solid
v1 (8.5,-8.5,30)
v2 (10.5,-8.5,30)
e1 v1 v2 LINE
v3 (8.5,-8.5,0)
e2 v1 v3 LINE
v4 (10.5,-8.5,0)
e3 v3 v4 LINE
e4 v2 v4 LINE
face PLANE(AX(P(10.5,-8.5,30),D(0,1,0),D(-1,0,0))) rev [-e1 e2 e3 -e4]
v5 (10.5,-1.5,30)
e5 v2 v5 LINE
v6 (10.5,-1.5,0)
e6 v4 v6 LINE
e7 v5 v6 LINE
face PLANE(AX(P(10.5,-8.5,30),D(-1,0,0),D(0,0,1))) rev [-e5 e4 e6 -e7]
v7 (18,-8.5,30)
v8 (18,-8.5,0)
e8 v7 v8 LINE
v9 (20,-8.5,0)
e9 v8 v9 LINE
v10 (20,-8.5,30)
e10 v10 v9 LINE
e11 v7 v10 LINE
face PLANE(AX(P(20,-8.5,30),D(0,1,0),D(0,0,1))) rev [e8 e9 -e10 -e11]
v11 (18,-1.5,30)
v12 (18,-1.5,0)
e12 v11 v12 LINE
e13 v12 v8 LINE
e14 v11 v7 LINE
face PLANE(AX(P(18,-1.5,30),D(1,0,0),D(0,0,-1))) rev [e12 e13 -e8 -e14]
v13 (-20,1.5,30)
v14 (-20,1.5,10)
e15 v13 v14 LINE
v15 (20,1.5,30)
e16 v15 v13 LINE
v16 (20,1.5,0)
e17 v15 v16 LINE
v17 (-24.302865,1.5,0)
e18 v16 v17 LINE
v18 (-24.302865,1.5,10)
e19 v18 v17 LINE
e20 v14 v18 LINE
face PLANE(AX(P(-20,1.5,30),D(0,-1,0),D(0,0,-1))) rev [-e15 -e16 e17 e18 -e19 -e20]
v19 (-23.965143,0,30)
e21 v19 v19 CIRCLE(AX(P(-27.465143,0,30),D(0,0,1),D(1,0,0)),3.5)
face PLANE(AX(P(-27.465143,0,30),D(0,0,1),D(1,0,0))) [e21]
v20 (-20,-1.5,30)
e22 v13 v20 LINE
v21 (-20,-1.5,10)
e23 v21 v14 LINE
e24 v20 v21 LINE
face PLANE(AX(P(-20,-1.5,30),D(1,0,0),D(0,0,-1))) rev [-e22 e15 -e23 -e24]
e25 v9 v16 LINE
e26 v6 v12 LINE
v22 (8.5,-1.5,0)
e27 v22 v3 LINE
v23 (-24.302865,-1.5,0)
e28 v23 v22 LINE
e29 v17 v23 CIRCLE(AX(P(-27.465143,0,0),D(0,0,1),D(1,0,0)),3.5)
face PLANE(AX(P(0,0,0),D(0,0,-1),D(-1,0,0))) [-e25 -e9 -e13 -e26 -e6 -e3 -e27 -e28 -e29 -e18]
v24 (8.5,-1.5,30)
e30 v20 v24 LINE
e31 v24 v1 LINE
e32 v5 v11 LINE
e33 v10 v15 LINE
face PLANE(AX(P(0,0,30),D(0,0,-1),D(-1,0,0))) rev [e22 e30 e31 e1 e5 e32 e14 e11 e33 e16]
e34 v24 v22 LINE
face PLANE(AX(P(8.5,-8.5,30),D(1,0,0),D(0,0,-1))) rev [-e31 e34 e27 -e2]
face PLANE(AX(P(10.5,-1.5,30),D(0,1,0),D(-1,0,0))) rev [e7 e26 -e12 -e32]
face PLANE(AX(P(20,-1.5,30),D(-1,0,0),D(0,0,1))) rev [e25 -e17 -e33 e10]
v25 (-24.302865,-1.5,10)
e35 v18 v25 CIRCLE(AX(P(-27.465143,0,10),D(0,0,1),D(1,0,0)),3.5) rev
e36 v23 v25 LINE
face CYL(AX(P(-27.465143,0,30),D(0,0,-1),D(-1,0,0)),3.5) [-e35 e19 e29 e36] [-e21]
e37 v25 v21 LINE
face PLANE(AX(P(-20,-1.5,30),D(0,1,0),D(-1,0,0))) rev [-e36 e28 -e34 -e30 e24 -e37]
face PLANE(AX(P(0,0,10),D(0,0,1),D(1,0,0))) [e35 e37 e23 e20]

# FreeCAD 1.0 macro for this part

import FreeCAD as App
import Part
import Sketcher

V = App.Vector


def add_polygon(sketch, points):
    """Adds a closed chain of lines whose ends are joined by coincident constraints."""
    first, n = sketch.GeometryCount, len(points)
    for a, b in zip(points, points[1:] + points[:1]):
        sketch.addGeometry(Part.LineSegment(App.Vector(*a, 0), App.Vector(*b, 0)), False)
    for i in range(n):
        sketch.addConstraint(Sketcher.Constraint("Coincident", first + i, 2, first + (i + 1) % n, 1))

doc = App.newDocument("Part")
body = doc.addObject("PartDesign::Body", "Body")

# Sketch on XY plane
sketch1 = doc.addObject("Sketcher::SketchObject", "Sketch")
body.addObject(sketch1)
sketch1.AttachmentSupport = (doc.XY_Plane, [""])
sketch1.MapMode = "FlatFace"
add_polygon(sketch1, [(-20, -1.5), (8.5, -1.5), (8.5, -8.5), (10.5, -8.5), (10.5, -1.5), (18, -1.5), (18, -8.5), (20, -8.5), (20, 1.5), (-20, 1.5)])  # lines 0-9
sketch1.addConstraint([
    Sketcher.Constraint("Horizontal", 0),
    Sketcher.Constraint("Vertical", 1),
    Sketcher.Constraint("Horizontal", 2),
    Sketcher.Constraint("Vertical", 3),
    Sketcher.Constraint("Horizontal", 4),
    Sketcher.Constraint("Vertical", 5),
    Sketcher.Constraint("Horizontal", 6),
    Sketcher.Constraint("Vertical", 7),
    Sketcher.Constraint("Horizontal", 8),
    Sketcher.Constraint("Vertical", 9),
    Sketcher.Constraint("Symmetric", 7, 2, 9, 2, -1, 1),
    Sketcher.Constraint("Horizontal", 0, 2, 3, 2),
    Sketcher.Constraint("Horizontal", 2, 2, 5, 2),
    Sketcher.Constraint("Equal", 2, 6),
    Sketcher.Constraint("DistanceX", 2, 1, 2, 2, 2.0),
    Sketcher.Constraint("DistanceX", 8, 2, 8, 1, 40.0),
    Sketcher.Constraint("DistanceY", 1, 2, 1, 1, 7.0),
    Sketcher.Constraint("DistanceY", 7, 1, 7, 2, 10.0),
    Sketcher.Constraint("DistanceX", 0, 1, 0, 2, 28.5),
])
pad1 = doc.addObject("PartDesign::Pad", "Pad")
body.addObject(pad1)
pad1.Profile = sketch1
pad1.Length = 30

# Sketch on XY plane
sketch2 = doc.addObject("Sketcher::SketchObject", "Sketch001")
body.addObject(sketch2)
sketch2.AttachmentSupport = (doc.XY_Plane, [""])
sketch2.MapMode = "FlatFace"
add_polygon(sketch2, [(-26, 1.5), (-26, -1.5), (-20, -1.5), (-20, 1.5)])  # lines 0-3
sketch2.addConstraint([
    Sketcher.Constraint("Vertical", 0),
    Sketcher.Constraint("Horizontal", 1),
    Sketcher.Constraint("Vertical", 2),
    Sketcher.Constraint("Horizontal", 3),
    Sketcher.Constraint("DistanceX", 1, 1, 1, 2, 6.0),
    Sketcher.Constraint("DistanceY", 0, 2, 0, 1, 3.0),
    Sketcher.Constraint("DistanceX", 0, 2, -1, 1, 26.0),
    Sketcher.Constraint("DistanceY", 0, 2, -1, 1, 1.5),
])
pad2 = doc.addObject("PartDesign::Pad", "Pad001")
body.addObject(pad2)
pad2.Profile = sketch2
pad2.Length = 10

# Sketch on XY plane
sketch3 = doc.addObject("Sketcher::SketchObject", "Sketch002")
body.addObject(sketch3)
sketch3.AttachmentSupport = (doc.XY_Plane, [""])
sketch3.MapMode = "FlatFace"
sketch3.addGeometry(Part.Circle(V(-27.5, 0, 0), V(0, 0, 1), 3.5), False)
sketch3.addConstraint([
    Sketcher.Constraint("PointOnObject", 0, 3, -1),
    Sketcher.Constraint("Diameter", 0, 7.0),
    Sketcher.Constraint("DistanceX", 0, 3, -1, 1, 27.465143),
])
pad3 = doc.addObject("PartDesign::Pad", "Pad002")
body.addObject(pad3)
pad3.Profile = sketch3
pad3.Length = 30

doc.recompute()
